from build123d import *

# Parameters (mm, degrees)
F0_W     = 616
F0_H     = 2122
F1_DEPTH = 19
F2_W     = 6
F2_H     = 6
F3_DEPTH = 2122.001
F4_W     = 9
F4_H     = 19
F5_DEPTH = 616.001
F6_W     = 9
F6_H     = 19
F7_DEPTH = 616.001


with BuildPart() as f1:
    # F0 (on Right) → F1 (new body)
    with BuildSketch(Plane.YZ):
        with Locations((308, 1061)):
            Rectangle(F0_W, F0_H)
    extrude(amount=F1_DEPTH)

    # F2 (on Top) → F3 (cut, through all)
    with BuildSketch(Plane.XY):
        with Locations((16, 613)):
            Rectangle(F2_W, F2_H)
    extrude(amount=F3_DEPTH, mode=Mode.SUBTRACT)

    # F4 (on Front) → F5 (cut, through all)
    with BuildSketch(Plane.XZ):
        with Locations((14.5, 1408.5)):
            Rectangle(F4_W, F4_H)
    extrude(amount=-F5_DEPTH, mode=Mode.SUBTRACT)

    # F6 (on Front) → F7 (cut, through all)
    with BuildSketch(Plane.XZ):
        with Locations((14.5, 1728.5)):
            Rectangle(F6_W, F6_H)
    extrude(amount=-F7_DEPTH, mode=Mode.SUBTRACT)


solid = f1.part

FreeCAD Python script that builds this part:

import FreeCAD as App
import Part
import Sketcher

V = App.Vector

doc = App.newDocument("Part")
body = doc.addObject("PartDesign::Body", "Body")

# Sketch on YZ plane
sketch1 = doc.addObject("Sketcher::SketchObject", "Sketch")
body.addObject(sketch1)
sketch1.AttachmentSupport = (doc.YZ_Plane, [""])
sketch1.MapMode = "FlatFace"
sketch1.addGeometry(Part.LineSegment(V(0, 2122, 0), V(0, 0, 0)), False)
sketch1.addGeometry(Part.LineSegment(V(0, 0, 0), V(616, 0, 0)), False)
sketch1.addGeometry(Part.LineSegment(V(616, 0, 0), V(616, 2122, 0)), False)
sketch1.addGeometry(Part.LineSegment(V(616, 2122, 0), V(0, 2122, 0)), False)
sketch1.addConstraint(Sketcher.Constraint("Coincident", 0, 2, 1, 1))
sketch1.addConstraint(Sketcher.Constraint("Coincident", 1, 2, 2, 1))
sketch1.addConstraint(Sketcher.Constraint("Coincident", 2, 2, 3, 1))
sketch1.addConstraint(Sketcher.Constraint("Coincident", 3, 2, 0, 1))
sketch1.addConstraint(Sketcher.Constraint("Vertical", 0))
sketch1.addConstraint(Sketcher.Constraint("Horizontal", 1))
sketch1.addConstraint(Sketcher.Constraint("Vertical", 2))
sketch1.addConstraint(Sketcher.Constraint("Horizontal", 3))
sketch1.addConstraint(Sketcher.Constraint("Coincident", 0, 2, -1, 1))
sketch1.addConstraint(Sketcher.Constraint("DistanceX", 1, 1, 1, 2, 616.0))
sketch1.addConstraint(Sketcher.Constraint("DistanceY", 0, 2, 0, 1, 2122.0))
pad1 = doc.addObject("PartDesign::Pad", "Pad")
body.addObject(pad1)
pad1.Profile = sketch1
pad1.Length = 19

# Sketch on XY plane
sketch2 = doc.addObject("Sketcher::SketchObject", "Sketch001")
body.addObject(sketch2)
sketch2.AttachmentSupport = (doc.XY_Plane, [""])
sketch2.MapMode = "FlatFace"
sketch2.addGeometry(Part.LineSegment(V(13, 616, 0), V(13, 610, 0)), False)
sketch2.addGeometry(Part.LineSegment(V(13, 610, 0), V(19, 610, 0)), False)
sketch2.addGeometry(Part.LineSegment(V(19, 610, 0), V(19, 616, 0)), False)
sketch2.addGeometry(Part.LineSegment(V(19, 616, 0), V(13, 616, 0)), False)
sketch2.addConstraint(Sketcher.Constraint("Coincident", 0, 2, 1, 1))
sketch2.addConstraint(Sketcher.Constraint("Coincident", 1, 2, 2, 1))
sketch2.addConstraint(Sketcher.Constraint("Coincident", 2, 2, 3, 1))
sketch2.addConstraint(Sketcher.Constraint("Coincident", 3, 2, 0, 1))
sketch2.addConstraint(Sketcher.Constraint("Vertical", 0))
sketch2.addConstraint(Sketcher.Constraint("Horizontal", 1))
sketch2.addConstraint(Sketcher.Constraint("Vertical", 2))
sketch2.addConstraint(Sketcher.Constraint("Horizontal", 3))
sketch2.addConstraint(Sketcher.Constraint("Equal", 3, 0))
sketch2.addConstraint(Sketcher.Constraint("DistanceX", 1, 1, 1, 2, 6.0))
sketch2.addConstraint(Sketcher.Constraint("DistanceX", -1, 1, 0, 2, 13.0))
sketch2.addConstraint(Sketcher.Constraint("DistanceY", -1, 1, 0, 2, 610.0))
pocket1 = doc.addObject("PartDesign::Pocket", "Pocket")
body.addObject(pocket1)
pocket1.Profile = sketch2
pocket1.Type = "ThroughAll"
pocket1.Reversed = True

# Sketch on XZ plane
sketch3 = doc.addObject("Sketcher::SketchObject", "Sketch002")
body.addObject(sketch3)
sketch3.AttachmentSupport = (doc.XZ_Plane, [""])
sketch3.MapMode = "FlatFace"
sketch3.addGeometry(Part.LineSegment(V(10, 1418, 0), V(10, 1399, 0)), False)
sketch3.addGeometry(Part.LineSegment(V(10, 1399, 0), V(19, 1399, 0)), False)
sketch3.addGeometry(Part.LineSegment(V(19, 1399, 0), V(19, 1418, 0)), False)
sketch3.addGeometry(Part.LineSegment(V(19, 1418, 0), V(10, 1418, 0)), False)
sketch3.addConstraint(Sketcher.Constraint("Coincident", 0, 2, 1, 1))
sketch3.addConstraint(Sketcher.Constraint("Coincident", 1, 2, 2, 1))
sketch3.addConstraint(Sketcher.Constraint("Coincident", 2, 2, 3, 1))
sketch3.addConstraint(Sketcher.Constraint("Coincident", 3, 2, 0, 1))
sketch3.addConstraint(Sketcher.Constraint("Vertical", 0))
sketch3.addConstraint(Sketcher.Constraint("Horizontal", 1))
sketch3.addConstraint(Sketcher.Constraint("Vertical", 2))
sketch3.addConstraint(Sketcher.Constraint("Horizontal", 3))
sketch3.addConstraint(Sketcher.Constraint("DistanceX", 1, 1, 1, 2, 9.0))
sketch3.addConstraint(Sketcher.Constraint("DistanceY", 0, 2, 0, 1, 19.0))
sketch3.addConstraint(Sketcher.Constraint("DistanceX", -1, 1, 0, 2, 10.0))
sketch3.addConstraint(Sketcher.Constraint("DistanceY", -1, 1, 0, 2, 1399.0))
pocket2 = doc.addObject("PartDesign::Pocket", "Pocket001")
body.addObject(pocket2)
pocket2.Profile = sketch3
pocket2.Type = "ThroughAll"

# Sketch on XZ plane
sketch4 = doc.addObject("Sketcher::SketchObject", "Sketch003")
body.addObject(sketch4)
sketch4.AttachmentSupport = (doc.XZ_Plane, [""])
sketch4.MapMode = "FlatFace"
sketch4.addGeometry(Part.LineSegment(V(10, 1738, 0), V(10, 1719, 0)), False)
sketch4.addGeometry(Part.LineSegment(V(10, 1719, 0), V(19, 1719, 0)), False)
sketch4.addGeometry(Part.LineSegment(V(19, 1719, 0), V(19, 1738, 0)), False)
sketch4.addGeometry(Part.LineSegment(V(19, 1738, 0), V(10, 1738, 0)), False)
sketch4.addConstraint(Sketcher.Constraint("Coincident", 0, 2, 1, 1))
sketch4.addConstraint(Sketcher.Constraint("Coincident", 1, 2, 2, 1))
sketch4.addConstraint(Sketcher.Constraint("Coincident", 2, 2, 3, 1))
sketch4.addConstraint(Sketcher.Constraint("Coincident", 3, 2, 0, 1))
sketch4.addConstraint(Sketcher.Constraint("Vertical", 0))
sketch4.addConstraint(Sketcher.Constraint("Horizontal", 1))
sketch4.addConstraint(Sketcher.Constraint("Vertical", 2))
sketch4.addConstraint(Sketcher.Constraint("Horizontal", 3))
sketch4.addConstraint(Sketcher.Constraint("DistanceX", 1, 1, 1, 2, 9.0))
sketch4.addConstraint(Sketcher.Constraint("DistanceY", 0, 2, 0, 1, 19.0))
sketch4.addConstraint(Sketcher.Constraint("DistanceX", -1, 1, 0, 2, 10.0))
sketch4.addConstraint(Sketcher.Constraint("DistanceY", -1, 1, 0, 2, 1719.0))
pocket3 = doc.addObject("PartDesign::Pocket", "Pocket002")
body.addObject(pocket3)
pocket3.Profile = sketch4
pocket3.Type = "ThroughAll"

doc.recompute()
